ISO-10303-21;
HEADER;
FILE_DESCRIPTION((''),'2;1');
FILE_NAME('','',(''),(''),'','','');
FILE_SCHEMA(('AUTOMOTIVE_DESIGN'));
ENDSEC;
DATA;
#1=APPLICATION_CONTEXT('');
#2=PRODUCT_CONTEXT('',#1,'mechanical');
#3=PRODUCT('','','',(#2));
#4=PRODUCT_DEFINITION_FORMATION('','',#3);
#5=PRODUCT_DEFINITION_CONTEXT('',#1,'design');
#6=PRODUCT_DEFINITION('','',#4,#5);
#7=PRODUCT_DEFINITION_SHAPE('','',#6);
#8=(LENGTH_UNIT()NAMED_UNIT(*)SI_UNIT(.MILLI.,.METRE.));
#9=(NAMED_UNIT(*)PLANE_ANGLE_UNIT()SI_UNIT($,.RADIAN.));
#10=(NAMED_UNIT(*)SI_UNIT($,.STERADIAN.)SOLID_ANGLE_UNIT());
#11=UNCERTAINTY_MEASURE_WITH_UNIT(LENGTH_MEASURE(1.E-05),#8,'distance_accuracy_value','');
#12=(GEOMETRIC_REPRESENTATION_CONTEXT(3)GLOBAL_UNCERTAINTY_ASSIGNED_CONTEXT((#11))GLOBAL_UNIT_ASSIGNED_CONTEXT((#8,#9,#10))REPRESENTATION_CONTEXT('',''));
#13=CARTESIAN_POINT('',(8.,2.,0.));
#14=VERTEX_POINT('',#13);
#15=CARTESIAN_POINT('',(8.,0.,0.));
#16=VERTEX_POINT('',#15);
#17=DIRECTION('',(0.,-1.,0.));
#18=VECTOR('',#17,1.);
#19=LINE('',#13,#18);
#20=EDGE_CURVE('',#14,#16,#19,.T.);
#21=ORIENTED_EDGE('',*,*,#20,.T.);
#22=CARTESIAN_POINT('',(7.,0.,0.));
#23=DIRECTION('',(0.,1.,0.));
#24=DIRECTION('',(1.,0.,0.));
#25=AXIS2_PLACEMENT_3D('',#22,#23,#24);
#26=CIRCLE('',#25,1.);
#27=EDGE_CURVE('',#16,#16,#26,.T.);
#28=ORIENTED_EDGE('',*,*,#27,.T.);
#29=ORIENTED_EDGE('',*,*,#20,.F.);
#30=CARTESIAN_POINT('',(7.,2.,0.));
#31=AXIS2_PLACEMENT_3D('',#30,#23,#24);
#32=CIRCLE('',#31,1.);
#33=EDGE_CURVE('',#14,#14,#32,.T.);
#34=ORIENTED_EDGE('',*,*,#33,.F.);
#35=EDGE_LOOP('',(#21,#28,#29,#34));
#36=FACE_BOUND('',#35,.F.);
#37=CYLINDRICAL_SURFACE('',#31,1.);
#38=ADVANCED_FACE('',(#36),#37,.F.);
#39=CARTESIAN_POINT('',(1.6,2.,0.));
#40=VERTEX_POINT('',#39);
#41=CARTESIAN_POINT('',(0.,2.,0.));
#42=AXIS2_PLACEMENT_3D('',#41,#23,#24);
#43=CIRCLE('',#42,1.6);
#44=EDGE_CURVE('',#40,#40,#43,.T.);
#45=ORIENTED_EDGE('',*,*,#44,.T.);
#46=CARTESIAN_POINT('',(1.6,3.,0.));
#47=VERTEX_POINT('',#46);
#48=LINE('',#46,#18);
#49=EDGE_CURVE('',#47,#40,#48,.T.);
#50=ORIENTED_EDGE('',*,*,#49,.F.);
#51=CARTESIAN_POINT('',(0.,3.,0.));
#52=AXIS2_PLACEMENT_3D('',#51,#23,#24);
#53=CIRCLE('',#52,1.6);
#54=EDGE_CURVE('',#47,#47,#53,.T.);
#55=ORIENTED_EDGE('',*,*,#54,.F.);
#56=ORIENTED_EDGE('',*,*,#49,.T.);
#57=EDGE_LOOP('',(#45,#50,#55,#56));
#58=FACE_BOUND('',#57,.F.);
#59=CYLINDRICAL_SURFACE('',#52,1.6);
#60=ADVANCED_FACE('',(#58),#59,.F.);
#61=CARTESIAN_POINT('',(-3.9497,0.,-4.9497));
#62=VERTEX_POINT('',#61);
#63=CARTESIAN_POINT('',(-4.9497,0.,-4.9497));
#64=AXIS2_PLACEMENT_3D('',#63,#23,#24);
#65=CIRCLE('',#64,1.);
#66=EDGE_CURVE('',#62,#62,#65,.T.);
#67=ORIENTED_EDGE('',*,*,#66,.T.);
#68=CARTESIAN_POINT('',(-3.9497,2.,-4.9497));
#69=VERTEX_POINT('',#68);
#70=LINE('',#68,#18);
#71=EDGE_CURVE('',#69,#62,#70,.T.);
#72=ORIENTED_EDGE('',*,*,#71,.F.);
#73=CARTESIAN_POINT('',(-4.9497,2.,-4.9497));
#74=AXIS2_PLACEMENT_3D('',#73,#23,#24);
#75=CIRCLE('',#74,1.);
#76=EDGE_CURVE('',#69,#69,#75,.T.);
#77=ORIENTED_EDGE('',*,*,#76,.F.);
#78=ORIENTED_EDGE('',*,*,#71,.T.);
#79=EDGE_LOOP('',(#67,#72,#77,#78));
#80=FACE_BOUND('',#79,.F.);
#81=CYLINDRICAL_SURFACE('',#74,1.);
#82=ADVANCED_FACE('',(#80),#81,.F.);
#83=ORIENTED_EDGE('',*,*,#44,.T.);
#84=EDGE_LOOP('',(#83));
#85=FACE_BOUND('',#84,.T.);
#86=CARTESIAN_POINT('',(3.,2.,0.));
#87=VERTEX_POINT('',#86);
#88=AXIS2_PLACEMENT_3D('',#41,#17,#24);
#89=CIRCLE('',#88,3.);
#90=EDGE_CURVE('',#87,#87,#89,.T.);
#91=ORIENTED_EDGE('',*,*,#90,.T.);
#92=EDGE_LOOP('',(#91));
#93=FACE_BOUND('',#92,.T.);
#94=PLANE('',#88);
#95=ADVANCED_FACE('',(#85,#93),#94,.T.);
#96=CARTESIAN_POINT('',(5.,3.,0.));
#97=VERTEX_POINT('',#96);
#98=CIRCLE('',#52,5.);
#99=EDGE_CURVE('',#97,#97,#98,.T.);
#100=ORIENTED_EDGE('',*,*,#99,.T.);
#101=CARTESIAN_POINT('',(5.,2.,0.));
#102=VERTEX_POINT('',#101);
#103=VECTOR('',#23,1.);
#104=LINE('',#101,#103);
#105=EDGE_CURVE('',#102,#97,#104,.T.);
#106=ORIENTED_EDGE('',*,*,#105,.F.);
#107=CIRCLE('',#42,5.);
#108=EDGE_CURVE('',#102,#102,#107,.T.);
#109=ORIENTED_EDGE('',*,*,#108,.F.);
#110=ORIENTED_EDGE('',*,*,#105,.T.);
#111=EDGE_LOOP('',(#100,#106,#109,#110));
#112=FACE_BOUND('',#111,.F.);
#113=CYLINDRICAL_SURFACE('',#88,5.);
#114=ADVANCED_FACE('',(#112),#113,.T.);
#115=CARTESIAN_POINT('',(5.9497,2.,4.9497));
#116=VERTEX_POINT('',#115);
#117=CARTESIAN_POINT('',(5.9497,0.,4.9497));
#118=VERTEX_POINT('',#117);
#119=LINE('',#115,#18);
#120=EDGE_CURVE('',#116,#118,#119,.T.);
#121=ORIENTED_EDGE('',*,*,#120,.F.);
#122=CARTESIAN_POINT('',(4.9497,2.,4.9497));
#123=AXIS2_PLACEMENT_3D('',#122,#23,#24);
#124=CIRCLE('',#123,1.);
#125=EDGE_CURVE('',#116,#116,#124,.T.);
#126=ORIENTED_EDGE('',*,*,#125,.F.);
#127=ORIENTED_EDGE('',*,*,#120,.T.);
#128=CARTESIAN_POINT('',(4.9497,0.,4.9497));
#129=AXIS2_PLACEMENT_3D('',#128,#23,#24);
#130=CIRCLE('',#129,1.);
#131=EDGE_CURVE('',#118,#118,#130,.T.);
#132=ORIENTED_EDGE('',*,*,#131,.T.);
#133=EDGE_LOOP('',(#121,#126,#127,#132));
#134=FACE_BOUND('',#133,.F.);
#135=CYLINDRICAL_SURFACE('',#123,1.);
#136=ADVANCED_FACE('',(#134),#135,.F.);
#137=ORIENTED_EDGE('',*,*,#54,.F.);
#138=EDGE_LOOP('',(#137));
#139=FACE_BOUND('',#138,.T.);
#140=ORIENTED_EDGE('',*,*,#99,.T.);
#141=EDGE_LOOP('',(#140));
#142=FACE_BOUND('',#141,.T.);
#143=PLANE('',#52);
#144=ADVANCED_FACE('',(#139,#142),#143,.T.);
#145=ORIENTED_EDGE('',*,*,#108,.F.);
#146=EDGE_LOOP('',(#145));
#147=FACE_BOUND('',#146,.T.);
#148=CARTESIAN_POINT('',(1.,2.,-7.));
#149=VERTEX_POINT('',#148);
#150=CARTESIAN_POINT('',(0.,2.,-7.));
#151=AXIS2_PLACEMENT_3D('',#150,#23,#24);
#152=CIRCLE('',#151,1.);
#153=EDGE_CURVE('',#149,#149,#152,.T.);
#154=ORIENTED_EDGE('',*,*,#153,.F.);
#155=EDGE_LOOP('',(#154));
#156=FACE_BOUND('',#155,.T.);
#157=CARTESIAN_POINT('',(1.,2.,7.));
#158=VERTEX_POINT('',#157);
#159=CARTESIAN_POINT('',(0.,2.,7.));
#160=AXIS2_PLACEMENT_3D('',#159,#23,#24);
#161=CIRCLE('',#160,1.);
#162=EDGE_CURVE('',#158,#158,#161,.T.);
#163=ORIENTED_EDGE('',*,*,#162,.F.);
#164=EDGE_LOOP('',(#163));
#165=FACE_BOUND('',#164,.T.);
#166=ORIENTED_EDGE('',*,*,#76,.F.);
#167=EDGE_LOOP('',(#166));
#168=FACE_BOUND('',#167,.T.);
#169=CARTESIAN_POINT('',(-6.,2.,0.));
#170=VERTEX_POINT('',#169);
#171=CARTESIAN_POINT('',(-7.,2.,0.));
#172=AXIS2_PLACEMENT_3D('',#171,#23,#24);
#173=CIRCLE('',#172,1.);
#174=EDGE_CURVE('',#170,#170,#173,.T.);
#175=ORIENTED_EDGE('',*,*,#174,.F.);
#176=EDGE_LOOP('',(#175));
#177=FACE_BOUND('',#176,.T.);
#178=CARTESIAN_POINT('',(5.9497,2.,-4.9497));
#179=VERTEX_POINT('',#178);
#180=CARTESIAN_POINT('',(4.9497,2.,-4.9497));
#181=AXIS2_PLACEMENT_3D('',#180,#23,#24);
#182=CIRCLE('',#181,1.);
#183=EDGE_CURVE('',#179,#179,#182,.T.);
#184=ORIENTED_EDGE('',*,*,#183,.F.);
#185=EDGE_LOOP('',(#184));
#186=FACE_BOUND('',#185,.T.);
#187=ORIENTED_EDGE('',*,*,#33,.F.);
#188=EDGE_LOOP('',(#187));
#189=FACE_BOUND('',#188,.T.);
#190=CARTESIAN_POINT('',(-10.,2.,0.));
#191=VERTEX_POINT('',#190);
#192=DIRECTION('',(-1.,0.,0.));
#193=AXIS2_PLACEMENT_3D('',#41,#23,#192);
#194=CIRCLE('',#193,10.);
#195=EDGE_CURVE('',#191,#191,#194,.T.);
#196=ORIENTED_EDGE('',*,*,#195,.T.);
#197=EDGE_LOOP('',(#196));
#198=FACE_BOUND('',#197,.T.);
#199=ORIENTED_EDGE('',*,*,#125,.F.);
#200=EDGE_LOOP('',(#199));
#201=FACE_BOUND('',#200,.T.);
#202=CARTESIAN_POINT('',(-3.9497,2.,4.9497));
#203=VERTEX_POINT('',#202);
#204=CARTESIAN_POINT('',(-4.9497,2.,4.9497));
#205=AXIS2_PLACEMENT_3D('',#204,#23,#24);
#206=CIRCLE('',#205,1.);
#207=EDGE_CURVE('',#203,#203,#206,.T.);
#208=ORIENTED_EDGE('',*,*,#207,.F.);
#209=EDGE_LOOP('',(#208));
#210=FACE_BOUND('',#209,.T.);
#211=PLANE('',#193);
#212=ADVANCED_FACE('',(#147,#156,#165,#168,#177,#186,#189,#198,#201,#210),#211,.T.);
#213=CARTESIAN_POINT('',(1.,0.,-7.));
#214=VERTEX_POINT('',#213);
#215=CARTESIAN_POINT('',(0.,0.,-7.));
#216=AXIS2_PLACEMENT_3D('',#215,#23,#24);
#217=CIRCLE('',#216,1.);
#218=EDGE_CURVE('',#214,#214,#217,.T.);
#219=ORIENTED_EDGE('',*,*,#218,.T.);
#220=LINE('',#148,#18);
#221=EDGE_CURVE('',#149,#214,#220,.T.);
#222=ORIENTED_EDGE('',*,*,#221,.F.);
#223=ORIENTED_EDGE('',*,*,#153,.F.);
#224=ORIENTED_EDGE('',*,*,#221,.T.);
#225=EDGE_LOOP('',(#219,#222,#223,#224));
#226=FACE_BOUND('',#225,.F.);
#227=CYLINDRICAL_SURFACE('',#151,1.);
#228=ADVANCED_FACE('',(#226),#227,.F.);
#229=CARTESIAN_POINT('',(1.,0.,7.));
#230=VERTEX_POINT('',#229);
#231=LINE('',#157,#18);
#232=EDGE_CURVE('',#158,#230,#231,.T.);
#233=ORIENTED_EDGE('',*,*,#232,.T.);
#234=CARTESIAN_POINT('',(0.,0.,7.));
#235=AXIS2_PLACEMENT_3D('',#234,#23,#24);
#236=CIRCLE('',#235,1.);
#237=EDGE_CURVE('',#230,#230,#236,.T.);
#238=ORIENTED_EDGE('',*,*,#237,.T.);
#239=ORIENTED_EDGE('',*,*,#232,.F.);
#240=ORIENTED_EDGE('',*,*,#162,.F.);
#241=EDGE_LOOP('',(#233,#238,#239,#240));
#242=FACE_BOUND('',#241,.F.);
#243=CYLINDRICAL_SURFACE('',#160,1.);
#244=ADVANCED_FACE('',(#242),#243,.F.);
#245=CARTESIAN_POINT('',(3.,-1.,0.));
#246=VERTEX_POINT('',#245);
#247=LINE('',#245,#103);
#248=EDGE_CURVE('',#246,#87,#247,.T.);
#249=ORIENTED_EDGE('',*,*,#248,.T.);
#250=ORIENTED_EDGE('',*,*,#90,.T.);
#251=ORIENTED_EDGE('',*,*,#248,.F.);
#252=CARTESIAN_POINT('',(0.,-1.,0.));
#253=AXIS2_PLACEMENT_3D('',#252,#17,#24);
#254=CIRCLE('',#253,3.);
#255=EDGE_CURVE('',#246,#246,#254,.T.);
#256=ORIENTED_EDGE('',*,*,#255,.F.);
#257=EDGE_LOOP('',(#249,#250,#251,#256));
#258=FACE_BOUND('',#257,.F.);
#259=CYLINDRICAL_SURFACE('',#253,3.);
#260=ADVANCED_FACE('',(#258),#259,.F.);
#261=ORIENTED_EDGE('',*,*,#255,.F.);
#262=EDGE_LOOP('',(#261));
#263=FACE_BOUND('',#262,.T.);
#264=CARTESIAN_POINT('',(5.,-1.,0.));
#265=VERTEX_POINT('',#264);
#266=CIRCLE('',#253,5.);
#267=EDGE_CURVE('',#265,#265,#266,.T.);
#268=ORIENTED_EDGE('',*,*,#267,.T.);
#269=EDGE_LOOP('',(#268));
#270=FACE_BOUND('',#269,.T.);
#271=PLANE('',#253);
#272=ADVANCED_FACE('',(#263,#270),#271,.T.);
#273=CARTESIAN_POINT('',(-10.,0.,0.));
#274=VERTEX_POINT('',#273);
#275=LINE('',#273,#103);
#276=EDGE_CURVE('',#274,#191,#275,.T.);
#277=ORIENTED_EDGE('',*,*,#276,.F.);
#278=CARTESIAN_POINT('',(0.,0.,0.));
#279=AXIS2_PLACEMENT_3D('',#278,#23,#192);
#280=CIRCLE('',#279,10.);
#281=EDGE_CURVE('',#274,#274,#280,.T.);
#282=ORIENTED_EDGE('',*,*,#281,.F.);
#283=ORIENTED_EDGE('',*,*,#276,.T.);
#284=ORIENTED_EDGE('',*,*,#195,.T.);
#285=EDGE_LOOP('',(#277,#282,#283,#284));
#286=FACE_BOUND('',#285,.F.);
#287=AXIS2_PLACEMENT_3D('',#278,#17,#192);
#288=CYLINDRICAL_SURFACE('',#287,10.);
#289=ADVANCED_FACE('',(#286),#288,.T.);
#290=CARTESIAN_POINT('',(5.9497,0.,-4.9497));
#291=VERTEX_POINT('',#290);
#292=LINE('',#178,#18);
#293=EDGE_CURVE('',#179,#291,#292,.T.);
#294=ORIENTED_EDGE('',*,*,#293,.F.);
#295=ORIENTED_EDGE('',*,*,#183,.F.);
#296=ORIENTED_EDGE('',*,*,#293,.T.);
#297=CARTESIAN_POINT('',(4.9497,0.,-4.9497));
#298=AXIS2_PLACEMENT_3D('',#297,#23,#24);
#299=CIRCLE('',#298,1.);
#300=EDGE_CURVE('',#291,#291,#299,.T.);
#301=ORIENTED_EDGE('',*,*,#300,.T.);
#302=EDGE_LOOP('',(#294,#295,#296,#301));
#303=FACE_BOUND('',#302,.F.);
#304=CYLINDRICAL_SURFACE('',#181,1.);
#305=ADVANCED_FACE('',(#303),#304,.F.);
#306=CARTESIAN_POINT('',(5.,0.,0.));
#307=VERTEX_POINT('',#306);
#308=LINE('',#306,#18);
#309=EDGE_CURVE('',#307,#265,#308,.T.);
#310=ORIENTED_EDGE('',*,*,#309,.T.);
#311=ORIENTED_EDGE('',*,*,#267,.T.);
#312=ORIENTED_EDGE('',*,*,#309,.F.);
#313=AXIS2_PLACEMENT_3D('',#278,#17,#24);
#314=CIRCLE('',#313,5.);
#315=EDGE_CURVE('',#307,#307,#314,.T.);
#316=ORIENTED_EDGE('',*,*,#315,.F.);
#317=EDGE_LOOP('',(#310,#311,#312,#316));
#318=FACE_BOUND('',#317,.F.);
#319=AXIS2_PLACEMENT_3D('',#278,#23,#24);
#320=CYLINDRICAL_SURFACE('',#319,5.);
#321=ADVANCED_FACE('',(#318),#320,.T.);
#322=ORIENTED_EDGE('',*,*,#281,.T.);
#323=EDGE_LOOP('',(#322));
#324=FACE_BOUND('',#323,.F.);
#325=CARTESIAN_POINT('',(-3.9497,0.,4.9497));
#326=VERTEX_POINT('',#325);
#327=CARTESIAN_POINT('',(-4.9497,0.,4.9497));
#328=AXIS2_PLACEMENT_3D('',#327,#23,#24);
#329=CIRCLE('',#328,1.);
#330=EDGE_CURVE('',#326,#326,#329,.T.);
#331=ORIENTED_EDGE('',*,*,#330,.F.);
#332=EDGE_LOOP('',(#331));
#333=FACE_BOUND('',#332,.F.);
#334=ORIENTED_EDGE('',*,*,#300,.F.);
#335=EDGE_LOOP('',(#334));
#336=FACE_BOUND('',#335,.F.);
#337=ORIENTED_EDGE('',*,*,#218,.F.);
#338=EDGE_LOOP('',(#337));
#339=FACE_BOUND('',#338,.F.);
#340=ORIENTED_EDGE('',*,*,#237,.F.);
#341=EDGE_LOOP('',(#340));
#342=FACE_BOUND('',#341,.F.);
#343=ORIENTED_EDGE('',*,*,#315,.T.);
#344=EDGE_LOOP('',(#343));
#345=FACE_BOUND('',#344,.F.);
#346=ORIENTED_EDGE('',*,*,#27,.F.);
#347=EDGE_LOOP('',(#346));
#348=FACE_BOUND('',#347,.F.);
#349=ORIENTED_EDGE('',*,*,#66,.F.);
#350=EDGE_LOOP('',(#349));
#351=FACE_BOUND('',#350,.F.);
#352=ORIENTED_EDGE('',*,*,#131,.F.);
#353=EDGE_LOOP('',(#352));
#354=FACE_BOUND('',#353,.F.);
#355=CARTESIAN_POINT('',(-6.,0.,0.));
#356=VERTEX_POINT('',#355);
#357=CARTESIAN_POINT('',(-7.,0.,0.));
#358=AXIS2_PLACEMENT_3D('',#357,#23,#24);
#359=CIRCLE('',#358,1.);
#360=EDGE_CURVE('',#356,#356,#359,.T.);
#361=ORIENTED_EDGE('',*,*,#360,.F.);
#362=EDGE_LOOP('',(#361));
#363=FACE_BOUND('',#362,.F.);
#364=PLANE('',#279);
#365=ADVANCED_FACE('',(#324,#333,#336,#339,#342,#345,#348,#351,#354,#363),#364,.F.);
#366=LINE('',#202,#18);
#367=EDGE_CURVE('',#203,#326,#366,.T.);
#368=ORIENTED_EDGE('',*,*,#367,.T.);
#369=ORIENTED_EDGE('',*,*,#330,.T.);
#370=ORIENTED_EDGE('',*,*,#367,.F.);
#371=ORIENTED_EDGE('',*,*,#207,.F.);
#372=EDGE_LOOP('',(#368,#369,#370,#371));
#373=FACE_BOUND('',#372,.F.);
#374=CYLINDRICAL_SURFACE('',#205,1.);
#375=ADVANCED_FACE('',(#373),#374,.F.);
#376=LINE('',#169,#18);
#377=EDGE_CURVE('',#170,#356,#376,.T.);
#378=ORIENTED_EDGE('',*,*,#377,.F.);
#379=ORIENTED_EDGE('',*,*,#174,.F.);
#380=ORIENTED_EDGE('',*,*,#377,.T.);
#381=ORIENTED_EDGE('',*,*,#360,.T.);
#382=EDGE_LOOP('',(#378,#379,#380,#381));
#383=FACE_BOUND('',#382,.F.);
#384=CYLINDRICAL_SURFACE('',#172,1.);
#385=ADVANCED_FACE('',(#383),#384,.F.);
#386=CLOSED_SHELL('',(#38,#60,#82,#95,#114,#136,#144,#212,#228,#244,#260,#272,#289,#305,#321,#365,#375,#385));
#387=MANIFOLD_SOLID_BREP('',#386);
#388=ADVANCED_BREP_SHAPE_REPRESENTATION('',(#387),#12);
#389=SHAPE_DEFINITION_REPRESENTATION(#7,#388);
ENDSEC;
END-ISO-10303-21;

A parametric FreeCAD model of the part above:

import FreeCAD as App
import Part
import Sketcher
from FreeCAD import Vector
Q = App.Units.Quantity

doc = App.newDocument("Part")
body = doc.addObject("PartDesign::Body", "Body")

# Sketch on XZ plane
sketch1 = body.newObject("Sketcher::SketchObject", "Sketch")
sketch1.AttachmentSupport = (doc.getObject("XZ_Plane"), [""])
sketch1.MapMode = "FlatFace"
sketch1.addGeometry(Part.Circle(Vector(0, 0, 0), Vector(0, 0, 1), 10), False)
sketch1.addConstraint([
    Sketcher.Constraint("Coincident", 0, 3, -1, 1),
    Sketcher.Constraint("Diameter", 0, Q("20 mm")),
])
pad1 = body.newObject("PartDesign::Pad", "Pad")
pad1.Profile = sketch1
pad1.Length = 2
pad1.Reversed = True

# Sketch on XZ plane
sketch2 = body.newObject("Sketcher::SketchObject", "Sketch001")
sketch2.AttachmentSupport = (doc.getObject("XZ_Plane"), [""])
sketch2.MapMode = "FlatFace"
sketch2.AttachmentOffset = App.Placement(Vector(0, 0, -2), App.Rotation())
sketch2.addGeometry([
    Part.Circle(Vector(-7, 0, 0), Vector(0, 0, 1), 1),  # 0
    Part.Circle(Vector(-4.9, 4.9, 0), Vector(0, 0, 1), 1),  # 1
    Part.Circle(Vector(0, 7, 0), Vector(0, 0, 1), 1),  # 2
    Part.Circle(Vector(4.9, 4.9, 0), Vector(0, 0, 1), 1),  # 3
    Part.Circle(Vector(7, 0, 0), Vector(0, 0, 1), 1),  # 4
    Part.Circle(Vector(4.9, -4.9, 0), Vector(0, 0, 1), 1),  # 5
    Part.Circle(Vector(-4.9, -4.9, 0), Vector(0, 0, 1), 1),  # 6
    Part.Circle(Vector(0, -7, 0), Vector(0, 0, 1), 1),  # 7
], False)
sketch2.addConstraint([
    Sketcher.Constraint("Equal", 0, 1),
    Sketcher.Constraint("Equal", 1, 2),
    Sketcher.Constraint("Equal", 2, 3),
    Sketcher.Constraint("Equal", 3, 4),
    Sketcher.Constraint("Equal", 4, 5),
    Sketcher.Constraint("Equal", 5, 6),
    Sketcher.Constraint("Equal", 6, 7),
    Sketcher.Constraint("Symmetric", 0, 3, 4, 3, -1, 1),
    Sketcher.Constraint("Symmetric", 1, 3, 5, 3, -1, 1),
    Sketcher.Constraint("Symmetric", 3, 3, 6, 3, -1, 1),
    Sketcher.Constraint("Symmetric", 2, 3, 7, 3, -1, 1),
    Sketcher.Constraint("Symmetric", 1, 3, 3, 3, -2),
    Sketcher.Constraint("PointOnObject", 0, 3, -1),
    Sketcher.Constraint("PointOnObject", 2, 3, -2),
    Sketcher.Constraint("Diameter", 0, Q("2 mm")),
    Sketcher.Constraint("DistanceX", 0, 3, 4, 3, Q("14 mm")),
    Sketcher.Constraint("DistanceY", -1, 1, 2, 3, Q("7 mm")),
    Sketcher.Constraint("DistanceX", 1, 3, -1, 1, Q("4.9497 mm")),
    Sketcher.Constraint("DistanceY", -1, 1, 1, 3, Q("4.9497 mm")),
])
pocket1 = body.newObject("PartDesign::Pocket", "Pocket")
pocket1.Profile = sketch2
pocket1.Length = 2
pocket1.Reversed = True

# Sketch on XZ plane
sketch3 = body.newObject("Sketcher::SketchObject", "Sketch002")
sketch3.AttachmentSupport = (doc.getObject("XZ_Plane"), [""])
sketch3.MapMode = "FlatFace"
sketch3.AttachmentOffset = App.Placement(Vector(0, 0, -2), App.Rotation())
sketch3.addGeometry(Part.Circle(Vector(0, 0, 0), Vector(0, 0, 1), 5), False)
sketch3.addConstraint([
    Sketcher.Constraint("Coincident", 0, 3, -1, 1),
    Sketcher.Constraint("Diameter", 0, Q("10 mm")),
])
pad2 = body.newObject("PartDesign::Pad", "Pad001")
pad2.Profile = sketch3
pad2.Length = 1
pad2.Reversed = True

# Sketch on XZ plane
sketch4 = body.newObject("Sketcher::SketchObject", "Sketch003")
sketch4.AttachmentSupport = (doc.getObject("XZ_Plane"), [""])
sketch4.MapMode = "FlatFace"
sketch4.AttachmentOffset = App.Placement(Vector(0, 0, -3), App.Rotation())
sketch4.addGeometry(Part.Circle(Vector(0, 0, 0), Vector(0, 0, 1), 1.6), False)
sketch4.addConstraint([
    Sketcher.Constraint("Coincident", 0, 3, -1, 1),
    Sketcher.Constraint("Diameter", 0, Q("3.2 mm")),
])
pocket2 = body.newObject("PartDesign::Pocket", "Pocket001")
pocket2.Profile = sketch4
pocket2.Length = 1
pocket2.Reversed = True

# Sketch on XZ plane
sketch5 = body.newObject("Sketcher::SketchObject", "Sketch004")
sketch5.AttachmentSupport = (doc.getObject("XZ_Plane"), [""])
sketch5.MapMode = "FlatFace"
sketch5.addGeometry(Part.Circle(Vector(0, 0, 0), Vector(0, 0, 1), 5), False)
sketch5.addConstraint([
    Sketcher.Constraint("Coincident", 0, 3, -1, 1),
    Sketcher.Constraint("Diameter", 0, Q("10 mm")),
])
pad3 = body.newObject("PartDesign::Pad", "Pad002")
pad3.Profile = sketch5
pad3.Length = 1

# Sketch on XZ plane
sketch6 = body.newObject("Sketcher::SketchObject", "Sketch005")
sketch6.AttachmentSupport = (doc.getObject("XZ_Plane"), [""])
sketch6.MapMode = "FlatFace"
sketch6.AttachmentOffset = App.Placement(Vector(0, 0, 1), App.Rotation())
sketch6.addGeometry(Part.Circle(Vector(0, 0, 0), Vector(0, 0, 1), 3), False)
sketch6.addConstraint([
    Sketcher.Constraint("Coincident", 0, 3, -1, 1),
    Sketcher.Constraint("Diameter", 0, Q("6 mm")),
])
pocket3 = body.newObject("PartDesign::Pocket", "Pocket002")
pocket3.Profile = sketch6
pocket3.Length = 3

doc.recompute()
